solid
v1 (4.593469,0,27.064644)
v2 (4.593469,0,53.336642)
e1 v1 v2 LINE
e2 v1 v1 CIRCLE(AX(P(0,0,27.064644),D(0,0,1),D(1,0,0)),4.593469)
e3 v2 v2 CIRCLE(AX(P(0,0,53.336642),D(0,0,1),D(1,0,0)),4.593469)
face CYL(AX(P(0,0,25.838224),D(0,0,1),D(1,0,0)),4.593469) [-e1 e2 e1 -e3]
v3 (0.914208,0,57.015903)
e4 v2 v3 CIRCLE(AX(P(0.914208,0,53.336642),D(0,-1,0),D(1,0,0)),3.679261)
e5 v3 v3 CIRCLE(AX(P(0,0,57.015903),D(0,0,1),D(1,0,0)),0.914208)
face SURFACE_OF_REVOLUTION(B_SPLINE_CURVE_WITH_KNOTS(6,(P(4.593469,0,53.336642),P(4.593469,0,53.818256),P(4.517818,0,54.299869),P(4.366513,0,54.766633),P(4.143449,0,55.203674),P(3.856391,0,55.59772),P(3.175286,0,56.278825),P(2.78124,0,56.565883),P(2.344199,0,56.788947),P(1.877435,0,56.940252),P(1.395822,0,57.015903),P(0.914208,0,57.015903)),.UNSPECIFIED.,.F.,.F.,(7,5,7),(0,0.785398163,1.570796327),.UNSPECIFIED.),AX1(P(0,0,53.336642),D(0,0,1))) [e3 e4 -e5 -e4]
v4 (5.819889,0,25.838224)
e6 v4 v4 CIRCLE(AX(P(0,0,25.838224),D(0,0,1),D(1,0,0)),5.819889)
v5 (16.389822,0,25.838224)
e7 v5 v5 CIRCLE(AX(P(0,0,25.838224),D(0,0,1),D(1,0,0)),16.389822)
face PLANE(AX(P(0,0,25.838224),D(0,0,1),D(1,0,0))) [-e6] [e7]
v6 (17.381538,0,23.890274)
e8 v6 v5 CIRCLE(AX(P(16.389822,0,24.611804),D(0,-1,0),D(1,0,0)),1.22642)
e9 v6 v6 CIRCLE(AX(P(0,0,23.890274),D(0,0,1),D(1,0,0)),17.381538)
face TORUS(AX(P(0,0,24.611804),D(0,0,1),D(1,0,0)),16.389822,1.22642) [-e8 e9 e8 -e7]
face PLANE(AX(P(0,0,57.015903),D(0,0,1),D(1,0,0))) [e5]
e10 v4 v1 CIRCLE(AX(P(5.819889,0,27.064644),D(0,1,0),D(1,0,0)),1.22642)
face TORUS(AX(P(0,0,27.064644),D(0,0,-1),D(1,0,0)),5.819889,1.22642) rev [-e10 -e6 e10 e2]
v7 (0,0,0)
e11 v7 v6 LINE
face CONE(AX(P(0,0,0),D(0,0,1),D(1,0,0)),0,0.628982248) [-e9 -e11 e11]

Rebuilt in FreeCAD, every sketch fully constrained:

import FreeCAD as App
import Part
import Sketcher

V = App.Vector
Q = App.Units.Quantity


def edges_at(feature, points):
    """Names of the edges that pass closest to the given points."""
    edges = feature.Shape.Edges
    near = lambda p: min(range(len(edges)), key=lambda i: edges[i].distToShape(Part.Vertex(*p))[0])
    return sorted({f"Edge{near(p) + 1}" for p in points})


def add_polygon(sketch, points):
    """Adds a closed chain of lines whose ends are joined by coincident constraints."""
    first, n = sketch.GeometryCount, len(points)
    for a, b in zip(points, points[1:] + points[:1]):
        sketch.addGeometry(Part.LineSegment(App.Vector(*a, 0), App.Vector(*b, 0)), False)
    for i in range(n):
        sketch.addConstraint(Sketcher.Constraint("Coincident", first + i, 2, first + (i + 1) % n, 1))

doc = App.newDocument("Part")
body = doc.addObject("PartDesign::Body", "Body")

sketch1 = body.newObject("Sketcher::SketchObject", "Sketch")
sketch1.AttachmentSupport = (doc.getObject("XZ_Plane"), [""])
sketch1.MapMode = "FlatFace"
add_polygon(sketch1, [(0, 57), (0, 0), (18.8, 25.8), (4.6, 25.8), (4.6, 57)])
sketch1.addConstraint([
    Sketcher.Constraint("Vertical", 0),
    Sketcher.Constraint("Horizontal", 2),
    Sketcher.Constraint("Vertical", 3),
    Sketcher.Constraint("Horizontal", 4),
    Sketcher.Constraint("Coincident", 0, 2, -1, 1),
    Sketcher.Constraint("DistanceX", 4, 2, 4, 1, Q("4.593469 mm")),
    Sketcher.Constraint("DistanceY", 3, 1, 3, 2, Q("31.177679 mm")),
    Sketcher.Constraint("DistanceX", 2, 2, 2, 1, Q("14.205314 mm")),
    Sketcher.Constraint("DistanceY", 0, 2, 0, 1, Q("57.015903 mm")),
])
revolution = body.newObject("PartDesign::Revolution", "Revolution")
revolution.Profile = sketch1
revolution.ReferenceAxis = (sketch1, ["V_Axis"])
revolution.Angle = 360
doc.recompute()

fillet = body.newObject("PartDesign::Fillet", "Fillet")
fillet.Base = (revolution, edges_at(revolution, [(-18.799, 0, 25.838), (-4.593, 0, 25.838)]))
fillet.Radius = 1.22642
doc.recompute()

fillet2 = body.newObject("PartDesign::Fillet", "Fillet001")
fillet2.Base = (fillet, edges_at(fillet, [(-4.593, 0, 57.016)]))
fillet2.Radius = 3.679261

doc.recompute()
